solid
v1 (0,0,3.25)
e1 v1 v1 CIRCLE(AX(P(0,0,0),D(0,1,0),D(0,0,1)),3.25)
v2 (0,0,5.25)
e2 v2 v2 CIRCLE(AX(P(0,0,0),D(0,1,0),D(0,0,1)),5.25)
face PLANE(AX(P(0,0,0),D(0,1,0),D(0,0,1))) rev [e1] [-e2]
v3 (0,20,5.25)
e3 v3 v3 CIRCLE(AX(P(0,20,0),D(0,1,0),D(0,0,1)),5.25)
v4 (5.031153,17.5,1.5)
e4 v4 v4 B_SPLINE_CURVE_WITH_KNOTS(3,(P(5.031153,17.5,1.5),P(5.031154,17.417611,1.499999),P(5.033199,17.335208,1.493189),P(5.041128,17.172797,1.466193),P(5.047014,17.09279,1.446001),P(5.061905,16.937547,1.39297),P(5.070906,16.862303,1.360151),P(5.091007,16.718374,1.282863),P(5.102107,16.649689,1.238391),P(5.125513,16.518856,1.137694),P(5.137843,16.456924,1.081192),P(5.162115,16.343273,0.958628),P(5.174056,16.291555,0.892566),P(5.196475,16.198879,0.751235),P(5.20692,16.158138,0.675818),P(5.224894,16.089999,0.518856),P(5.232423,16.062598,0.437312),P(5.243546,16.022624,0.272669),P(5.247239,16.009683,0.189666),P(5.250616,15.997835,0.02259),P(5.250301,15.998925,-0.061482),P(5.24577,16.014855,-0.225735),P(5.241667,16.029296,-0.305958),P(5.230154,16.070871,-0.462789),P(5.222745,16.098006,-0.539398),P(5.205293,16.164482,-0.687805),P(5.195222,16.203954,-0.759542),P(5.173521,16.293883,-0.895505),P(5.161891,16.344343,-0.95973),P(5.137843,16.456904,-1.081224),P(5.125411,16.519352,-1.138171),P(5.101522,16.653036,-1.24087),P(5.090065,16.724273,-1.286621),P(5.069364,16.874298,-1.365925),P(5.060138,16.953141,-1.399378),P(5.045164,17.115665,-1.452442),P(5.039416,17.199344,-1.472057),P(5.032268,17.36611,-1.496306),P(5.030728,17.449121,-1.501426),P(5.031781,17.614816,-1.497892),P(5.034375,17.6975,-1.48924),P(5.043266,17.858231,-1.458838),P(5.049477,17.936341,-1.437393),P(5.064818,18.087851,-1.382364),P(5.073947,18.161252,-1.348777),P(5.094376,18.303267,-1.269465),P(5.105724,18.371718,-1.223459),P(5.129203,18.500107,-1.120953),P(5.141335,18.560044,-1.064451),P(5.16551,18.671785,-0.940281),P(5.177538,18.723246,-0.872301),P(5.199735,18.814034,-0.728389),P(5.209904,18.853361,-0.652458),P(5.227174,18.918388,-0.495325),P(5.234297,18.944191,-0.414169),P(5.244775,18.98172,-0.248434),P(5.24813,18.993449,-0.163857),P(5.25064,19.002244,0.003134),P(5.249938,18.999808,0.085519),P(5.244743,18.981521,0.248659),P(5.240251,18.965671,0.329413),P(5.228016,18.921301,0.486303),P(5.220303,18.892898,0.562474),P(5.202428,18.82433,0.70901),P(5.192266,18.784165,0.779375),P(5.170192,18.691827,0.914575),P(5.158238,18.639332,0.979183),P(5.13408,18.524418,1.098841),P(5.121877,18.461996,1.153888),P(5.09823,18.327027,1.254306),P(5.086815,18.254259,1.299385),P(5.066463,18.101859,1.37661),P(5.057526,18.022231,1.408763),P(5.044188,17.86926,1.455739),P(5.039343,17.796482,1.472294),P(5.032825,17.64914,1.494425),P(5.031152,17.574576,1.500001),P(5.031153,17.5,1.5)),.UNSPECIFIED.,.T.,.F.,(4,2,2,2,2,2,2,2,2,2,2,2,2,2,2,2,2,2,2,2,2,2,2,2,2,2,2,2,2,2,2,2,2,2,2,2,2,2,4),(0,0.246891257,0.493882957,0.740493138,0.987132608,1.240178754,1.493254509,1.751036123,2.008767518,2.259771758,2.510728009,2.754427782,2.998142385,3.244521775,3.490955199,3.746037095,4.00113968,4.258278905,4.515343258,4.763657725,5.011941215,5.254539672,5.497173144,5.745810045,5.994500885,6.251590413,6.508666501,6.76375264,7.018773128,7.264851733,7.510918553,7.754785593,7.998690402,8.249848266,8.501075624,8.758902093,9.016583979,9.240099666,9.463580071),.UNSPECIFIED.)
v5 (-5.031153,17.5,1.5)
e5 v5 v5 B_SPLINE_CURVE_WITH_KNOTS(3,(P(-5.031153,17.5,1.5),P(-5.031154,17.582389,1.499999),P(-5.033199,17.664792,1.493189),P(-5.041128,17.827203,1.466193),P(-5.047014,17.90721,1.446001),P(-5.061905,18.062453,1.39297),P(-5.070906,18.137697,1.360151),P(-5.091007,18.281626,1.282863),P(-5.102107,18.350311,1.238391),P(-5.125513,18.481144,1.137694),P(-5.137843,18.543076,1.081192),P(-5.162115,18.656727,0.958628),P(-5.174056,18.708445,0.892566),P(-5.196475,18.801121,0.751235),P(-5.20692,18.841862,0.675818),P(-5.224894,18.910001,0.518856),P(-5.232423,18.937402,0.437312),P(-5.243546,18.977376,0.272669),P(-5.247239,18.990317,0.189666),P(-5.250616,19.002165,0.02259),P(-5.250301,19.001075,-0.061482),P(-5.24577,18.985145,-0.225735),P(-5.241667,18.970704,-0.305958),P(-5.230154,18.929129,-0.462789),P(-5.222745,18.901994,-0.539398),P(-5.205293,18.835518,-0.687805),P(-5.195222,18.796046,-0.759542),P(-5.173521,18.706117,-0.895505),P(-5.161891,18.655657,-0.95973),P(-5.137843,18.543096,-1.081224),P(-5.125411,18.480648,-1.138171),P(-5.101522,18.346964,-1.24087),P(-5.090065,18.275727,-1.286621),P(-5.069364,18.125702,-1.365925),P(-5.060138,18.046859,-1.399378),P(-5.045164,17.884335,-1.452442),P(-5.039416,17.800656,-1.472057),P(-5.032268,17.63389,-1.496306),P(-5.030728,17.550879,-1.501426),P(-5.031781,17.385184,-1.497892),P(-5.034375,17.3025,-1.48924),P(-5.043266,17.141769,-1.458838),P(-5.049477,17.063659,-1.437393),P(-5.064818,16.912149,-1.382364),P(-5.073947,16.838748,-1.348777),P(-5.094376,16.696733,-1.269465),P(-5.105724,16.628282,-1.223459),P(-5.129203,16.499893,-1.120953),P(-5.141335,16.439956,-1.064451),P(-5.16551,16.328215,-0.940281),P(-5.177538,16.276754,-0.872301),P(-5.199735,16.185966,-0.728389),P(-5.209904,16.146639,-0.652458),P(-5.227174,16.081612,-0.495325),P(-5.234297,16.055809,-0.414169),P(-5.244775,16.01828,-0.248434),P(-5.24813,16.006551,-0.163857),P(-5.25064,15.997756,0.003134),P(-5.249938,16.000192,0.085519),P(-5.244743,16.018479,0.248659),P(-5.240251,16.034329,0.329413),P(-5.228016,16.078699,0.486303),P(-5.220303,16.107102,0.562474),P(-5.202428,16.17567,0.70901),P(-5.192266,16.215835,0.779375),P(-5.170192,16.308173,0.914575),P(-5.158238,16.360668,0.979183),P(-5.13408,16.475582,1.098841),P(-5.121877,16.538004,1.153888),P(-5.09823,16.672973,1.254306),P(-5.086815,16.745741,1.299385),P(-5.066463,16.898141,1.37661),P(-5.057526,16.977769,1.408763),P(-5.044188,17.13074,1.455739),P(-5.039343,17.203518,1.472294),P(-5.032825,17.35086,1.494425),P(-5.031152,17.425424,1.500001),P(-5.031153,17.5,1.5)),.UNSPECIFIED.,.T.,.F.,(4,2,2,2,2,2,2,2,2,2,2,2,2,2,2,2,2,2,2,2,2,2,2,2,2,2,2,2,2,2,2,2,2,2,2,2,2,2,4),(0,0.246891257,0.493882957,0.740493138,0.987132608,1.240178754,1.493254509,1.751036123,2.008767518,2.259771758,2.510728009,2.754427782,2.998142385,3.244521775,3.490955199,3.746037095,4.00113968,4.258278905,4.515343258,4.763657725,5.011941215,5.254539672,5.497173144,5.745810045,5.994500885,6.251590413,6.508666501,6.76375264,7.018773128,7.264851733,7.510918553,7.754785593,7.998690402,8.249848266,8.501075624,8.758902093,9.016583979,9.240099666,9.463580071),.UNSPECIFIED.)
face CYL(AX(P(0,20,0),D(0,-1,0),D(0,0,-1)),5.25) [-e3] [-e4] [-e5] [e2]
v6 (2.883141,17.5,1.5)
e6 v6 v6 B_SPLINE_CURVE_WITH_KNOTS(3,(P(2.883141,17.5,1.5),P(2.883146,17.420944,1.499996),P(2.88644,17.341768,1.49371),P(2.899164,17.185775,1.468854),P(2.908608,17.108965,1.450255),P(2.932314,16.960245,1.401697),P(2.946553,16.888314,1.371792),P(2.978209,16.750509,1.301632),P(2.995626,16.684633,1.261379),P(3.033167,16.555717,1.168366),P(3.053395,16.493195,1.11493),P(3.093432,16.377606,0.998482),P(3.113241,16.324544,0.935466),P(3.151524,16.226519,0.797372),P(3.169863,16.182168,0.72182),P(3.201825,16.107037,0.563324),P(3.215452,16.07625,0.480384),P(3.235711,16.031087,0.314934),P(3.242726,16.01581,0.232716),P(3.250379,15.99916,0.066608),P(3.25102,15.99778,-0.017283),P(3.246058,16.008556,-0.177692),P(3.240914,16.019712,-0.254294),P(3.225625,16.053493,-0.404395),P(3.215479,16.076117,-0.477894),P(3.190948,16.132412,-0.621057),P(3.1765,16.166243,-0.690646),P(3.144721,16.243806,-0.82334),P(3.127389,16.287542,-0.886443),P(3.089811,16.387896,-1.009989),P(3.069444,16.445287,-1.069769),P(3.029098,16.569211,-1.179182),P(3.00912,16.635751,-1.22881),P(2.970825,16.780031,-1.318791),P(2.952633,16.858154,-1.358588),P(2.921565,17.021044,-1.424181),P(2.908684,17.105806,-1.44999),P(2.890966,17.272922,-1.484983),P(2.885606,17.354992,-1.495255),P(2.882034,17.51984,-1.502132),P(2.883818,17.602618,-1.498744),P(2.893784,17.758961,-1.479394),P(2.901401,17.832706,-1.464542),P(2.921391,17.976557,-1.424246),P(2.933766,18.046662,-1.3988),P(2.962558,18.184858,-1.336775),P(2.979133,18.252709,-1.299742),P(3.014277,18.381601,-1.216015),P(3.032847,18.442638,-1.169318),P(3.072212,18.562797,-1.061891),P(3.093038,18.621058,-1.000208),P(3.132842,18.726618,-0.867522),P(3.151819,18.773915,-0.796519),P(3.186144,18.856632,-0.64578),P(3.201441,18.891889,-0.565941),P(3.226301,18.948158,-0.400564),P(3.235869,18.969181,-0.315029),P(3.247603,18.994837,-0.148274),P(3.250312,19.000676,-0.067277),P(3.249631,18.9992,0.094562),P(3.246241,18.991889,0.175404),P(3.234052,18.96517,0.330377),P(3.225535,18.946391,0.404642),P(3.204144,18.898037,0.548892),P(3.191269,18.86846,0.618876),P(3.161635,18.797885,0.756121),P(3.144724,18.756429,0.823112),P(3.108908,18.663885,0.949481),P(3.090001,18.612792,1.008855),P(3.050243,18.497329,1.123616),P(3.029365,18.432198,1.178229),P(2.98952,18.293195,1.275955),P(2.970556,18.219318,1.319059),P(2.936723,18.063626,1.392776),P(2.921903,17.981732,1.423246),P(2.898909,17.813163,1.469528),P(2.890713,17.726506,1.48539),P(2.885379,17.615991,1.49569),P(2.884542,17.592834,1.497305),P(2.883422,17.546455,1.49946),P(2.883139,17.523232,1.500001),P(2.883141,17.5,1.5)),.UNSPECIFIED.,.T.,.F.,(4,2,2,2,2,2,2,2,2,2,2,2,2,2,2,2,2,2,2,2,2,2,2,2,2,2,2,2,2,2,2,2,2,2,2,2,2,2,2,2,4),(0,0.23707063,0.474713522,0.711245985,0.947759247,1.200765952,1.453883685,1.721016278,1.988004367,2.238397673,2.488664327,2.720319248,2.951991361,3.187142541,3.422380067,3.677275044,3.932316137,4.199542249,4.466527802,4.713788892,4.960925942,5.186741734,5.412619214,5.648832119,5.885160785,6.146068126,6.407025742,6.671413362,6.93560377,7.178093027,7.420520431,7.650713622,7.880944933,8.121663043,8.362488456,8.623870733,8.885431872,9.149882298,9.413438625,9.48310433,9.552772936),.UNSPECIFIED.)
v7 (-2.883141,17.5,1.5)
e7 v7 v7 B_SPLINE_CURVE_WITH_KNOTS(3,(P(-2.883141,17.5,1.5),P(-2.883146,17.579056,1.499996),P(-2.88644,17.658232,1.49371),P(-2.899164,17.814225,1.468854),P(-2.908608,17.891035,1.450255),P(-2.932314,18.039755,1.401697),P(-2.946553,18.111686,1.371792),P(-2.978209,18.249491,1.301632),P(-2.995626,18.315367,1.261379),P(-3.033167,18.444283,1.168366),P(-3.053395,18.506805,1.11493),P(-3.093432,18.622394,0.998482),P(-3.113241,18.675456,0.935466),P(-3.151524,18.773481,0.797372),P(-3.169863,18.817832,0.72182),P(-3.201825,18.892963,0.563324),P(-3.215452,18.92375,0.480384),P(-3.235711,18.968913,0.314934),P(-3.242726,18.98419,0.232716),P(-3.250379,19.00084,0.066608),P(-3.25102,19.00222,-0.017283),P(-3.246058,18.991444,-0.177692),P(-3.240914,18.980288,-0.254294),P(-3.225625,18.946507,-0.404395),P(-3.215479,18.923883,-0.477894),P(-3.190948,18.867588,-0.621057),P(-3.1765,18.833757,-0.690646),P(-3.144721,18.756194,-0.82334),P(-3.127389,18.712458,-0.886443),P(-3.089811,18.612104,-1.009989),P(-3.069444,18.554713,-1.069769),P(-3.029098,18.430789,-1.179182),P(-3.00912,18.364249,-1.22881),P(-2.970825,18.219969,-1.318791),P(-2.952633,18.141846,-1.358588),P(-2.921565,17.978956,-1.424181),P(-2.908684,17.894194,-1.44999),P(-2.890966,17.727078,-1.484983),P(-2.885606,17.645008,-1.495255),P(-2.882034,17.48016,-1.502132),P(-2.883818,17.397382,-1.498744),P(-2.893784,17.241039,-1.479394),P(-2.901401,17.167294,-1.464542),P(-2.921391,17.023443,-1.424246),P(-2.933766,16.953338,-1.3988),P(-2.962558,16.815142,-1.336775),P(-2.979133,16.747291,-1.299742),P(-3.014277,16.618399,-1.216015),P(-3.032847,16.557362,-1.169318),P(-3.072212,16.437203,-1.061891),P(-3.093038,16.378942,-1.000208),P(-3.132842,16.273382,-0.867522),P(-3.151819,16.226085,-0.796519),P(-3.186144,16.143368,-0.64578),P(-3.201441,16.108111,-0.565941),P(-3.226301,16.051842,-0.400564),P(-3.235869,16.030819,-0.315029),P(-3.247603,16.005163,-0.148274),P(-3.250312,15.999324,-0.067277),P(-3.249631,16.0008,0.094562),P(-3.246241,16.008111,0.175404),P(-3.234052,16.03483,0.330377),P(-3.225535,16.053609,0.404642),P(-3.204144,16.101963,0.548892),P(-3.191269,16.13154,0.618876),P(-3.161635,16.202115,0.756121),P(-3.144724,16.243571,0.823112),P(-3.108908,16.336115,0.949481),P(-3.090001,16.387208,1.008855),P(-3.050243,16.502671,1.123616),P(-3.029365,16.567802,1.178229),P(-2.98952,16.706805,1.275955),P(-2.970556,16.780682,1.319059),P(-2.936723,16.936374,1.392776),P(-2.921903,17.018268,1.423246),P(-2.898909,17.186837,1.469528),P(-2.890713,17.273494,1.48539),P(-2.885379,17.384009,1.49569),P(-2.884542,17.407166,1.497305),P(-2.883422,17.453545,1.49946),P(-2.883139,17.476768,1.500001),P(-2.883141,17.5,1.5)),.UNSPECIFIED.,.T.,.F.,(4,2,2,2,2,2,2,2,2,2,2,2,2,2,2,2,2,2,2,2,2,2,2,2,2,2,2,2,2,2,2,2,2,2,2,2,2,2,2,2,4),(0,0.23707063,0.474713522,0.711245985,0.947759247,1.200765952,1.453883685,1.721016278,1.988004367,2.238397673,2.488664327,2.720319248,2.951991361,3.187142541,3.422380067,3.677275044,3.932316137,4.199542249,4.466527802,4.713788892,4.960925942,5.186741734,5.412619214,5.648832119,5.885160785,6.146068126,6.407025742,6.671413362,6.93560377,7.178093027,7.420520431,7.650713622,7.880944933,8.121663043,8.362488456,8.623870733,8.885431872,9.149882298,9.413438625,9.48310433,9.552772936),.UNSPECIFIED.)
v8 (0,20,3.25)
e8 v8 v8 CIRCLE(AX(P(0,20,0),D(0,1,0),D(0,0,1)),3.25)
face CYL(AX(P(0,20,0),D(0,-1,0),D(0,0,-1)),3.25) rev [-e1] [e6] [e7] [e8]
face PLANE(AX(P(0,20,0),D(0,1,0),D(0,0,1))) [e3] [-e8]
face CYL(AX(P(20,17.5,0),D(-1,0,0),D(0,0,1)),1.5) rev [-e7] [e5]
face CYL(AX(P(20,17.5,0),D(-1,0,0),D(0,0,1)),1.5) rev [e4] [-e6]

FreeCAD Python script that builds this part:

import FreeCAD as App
import Part
import Sketcher
from FreeCAD import Vector
Q = App.Units.Quantity

doc = App.newDocument("Part")
body = doc.addObject("PartDesign::Body", "Body")

# Sketch on XZ plane
sketch1 = body.newObject("Sketcher::SketchObject", "Sketch")
sketch1.AttachmentSupport = (doc.getObject("XZ_Plane"), [""])
sketch1.MapMode = "FlatFace"
sketch1.addGeometry([
    Part.Circle(Vector(0, 0, 0), Vector(0, 0, 1), 5.2),
    Part.Circle(Vector(0, 0, 0), Vector(0, 0, 1), 3.2),
], False)
sketch1.addConstraint([
    Sketcher.Constraint("Coincident", 0, 3, -1, 1),
    Sketcher.Constraint("Coincident", 1, 3, -1, 1),
    Sketcher.Constraint("Diameter", 0, Q("10.5 mm")),
    Sketcher.Constraint("Diameter", 1, Q("6.5 mm")),
])
pad1 = body.newObject("PartDesign::Pad", "Pad")
pad1.Profile = sketch1
pad1.Length = 20
pad1.Reversed = True

# Sketch on YZ plane
sketch2 = body.newObject("Sketcher::SketchObject", "Sketch001")
sketch2.AttachmentSupport = (doc.getObject("YZ_Plane"), [""])
sketch2.MapMode = "FlatFace"
sketch2.addGeometry(Part.Circle(Vector(17.5, 0, 0), Vector(0, 0, 1), 1.5), False)
sketch2.addConstraint([
    Sketcher.Constraint("PointOnObject", 0, 3, -1),
    Sketcher.Constraint("Diameter", 0, Q("3 mm")),
    Sketcher.Constraint("DistanceX", -1, 1, 0, 3, Q("17.5 mm")),
])
pocket1 = body.newObject("PartDesign::Pocket", "Pocket")
pocket1.Profile = sketch2
pocket1.Type = "ThroughAll"
pocket1.Midplane = True

doc.recompute()
